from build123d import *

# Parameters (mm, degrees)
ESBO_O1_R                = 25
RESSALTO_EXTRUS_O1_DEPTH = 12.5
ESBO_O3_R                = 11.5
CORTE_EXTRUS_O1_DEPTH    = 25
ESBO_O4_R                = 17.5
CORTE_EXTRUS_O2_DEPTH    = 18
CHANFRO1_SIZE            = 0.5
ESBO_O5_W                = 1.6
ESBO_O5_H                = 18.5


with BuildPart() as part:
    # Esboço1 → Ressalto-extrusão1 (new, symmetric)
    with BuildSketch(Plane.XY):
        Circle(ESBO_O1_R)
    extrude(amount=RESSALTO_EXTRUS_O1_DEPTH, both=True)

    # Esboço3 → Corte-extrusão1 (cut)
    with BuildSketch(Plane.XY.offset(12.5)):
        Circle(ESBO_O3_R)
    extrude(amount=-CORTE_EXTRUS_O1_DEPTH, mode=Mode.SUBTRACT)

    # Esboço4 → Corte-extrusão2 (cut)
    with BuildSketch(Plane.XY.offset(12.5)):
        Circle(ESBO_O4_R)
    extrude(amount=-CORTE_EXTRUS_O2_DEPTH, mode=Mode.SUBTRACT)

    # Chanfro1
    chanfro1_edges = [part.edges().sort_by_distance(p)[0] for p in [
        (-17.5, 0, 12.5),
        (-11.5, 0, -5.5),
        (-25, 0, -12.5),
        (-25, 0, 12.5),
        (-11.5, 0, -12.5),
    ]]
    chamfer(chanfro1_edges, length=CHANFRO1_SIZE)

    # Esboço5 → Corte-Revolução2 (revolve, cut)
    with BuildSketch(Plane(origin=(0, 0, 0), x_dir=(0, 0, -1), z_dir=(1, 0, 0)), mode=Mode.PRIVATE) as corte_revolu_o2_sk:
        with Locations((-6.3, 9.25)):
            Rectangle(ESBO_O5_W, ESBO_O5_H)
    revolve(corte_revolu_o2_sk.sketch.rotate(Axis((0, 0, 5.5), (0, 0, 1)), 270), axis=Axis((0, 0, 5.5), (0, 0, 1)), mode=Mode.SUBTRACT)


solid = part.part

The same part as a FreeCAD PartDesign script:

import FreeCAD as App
import Part
import Sketcher


def edges_at(feature, points):
    """Names of the edges that pass closest to the given points."""
    edges = feature.Shape.Edges
    near = lambda p: min(range(len(edges)), key=lambda i: edges[i].distToShape(Part.Vertex(*p))[0])
    return sorted({f"Edge{near(p) + 1}" for p in points})

doc = App.newDocument("Part")
body = doc.addObject("PartDesign::Body", "Body")

sketch1 = doc.addObject("Sketcher::SketchObject", "Sketch")
body.addObject(sketch1)
sketch1.AttachmentSupport = (doc.XY_Plane, [""])
sketch1.MapMode = "FlatFace"
sketch1.addGeometry(Part.Circle(App.Vector(0, 0, 0), App.Vector(0, 0, 1), 25), False)
sketch1.addConstraint(Sketcher.Constraint("Coincident", 0, 3, -1, 1))
sketch1.addConstraint(Sketcher.Constraint("Diameter", 0, 50.0))
pad1 = doc.addObject("PartDesign::Pad", "Pad")
body.addObject(pad1)
pad1.Profile = sketch1
pad1.Length = 25
pad1.Midplane = True

sketch2 = doc.addObject("Sketcher::SketchObject", "Sketch001")
body.addObject(sketch2)
sketch2.AttachmentSupport = (doc.XY_Plane, [""])
sketch2.MapMode = "FlatFace"
sketch2.AttachmentOffset = App.Placement(App.Vector(0, 0, 12.5), App.Rotation())
sketch2.addGeometry(Part.Circle(App.Vector(0, 0, 0), App.Vector(0, 0, 1), 11.5), False)
sketch2.addConstraint(Sketcher.Constraint("Coincident", 0, 3, -1, 1))
sketch2.addConstraint(Sketcher.Constraint("Diameter", 0, 23.0))
pocket1 = doc.addObject("PartDesign::Pocket", "Pocket")
body.addObject(pocket1)
pocket1.Profile = sketch2
pocket1.Length = 25

sketch3 = doc.addObject("Sketcher::SketchObject", "Sketch002")
body.addObject(sketch3)
sketch3.AttachmentSupport = (doc.XY_Plane, [""])
sketch3.MapMode = "FlatFace"
sketch3.AttachmentOffset = App.Placement(App.Vector(0, 0, 12.5), App.Rotation())
sketch3.addGeometry(Part.Circle(App.Vector(0, 0, 0), App.Vector(0, 0, 1), 17.5), False)
sketch3.addConstraint(Sketcher.Constraint("Coincident", 0, 3, -1, 1))
sketch3.addConstraint(Sketcher.Constraint("Diameter", 0, 35.0))
pocket2 = doc.addObject("PartDesign::Pocket", "Pocket001")
body.addObject(pocket2)
pocket2.Profile = sketch3
pocket2.Length = 18
doc.recompute()

chamfer = doc.addObject("PartDesign::Chamfer", "Chamfer")
body.addObject(chamfer)
chamfer.Base = (pocket2, edges_at(pocket2, [
    (-17.5, 0, 12.5),
    (-11.5, 0, -5.5),
    (-25, 0, -12.5),
    (-25, 0, 12.5),
    (-11.5, 0, -12.5),
]))
chamfer.Size = 0.5

sketch4 = doc.addObject("Sketcher::SketchObject", "Sketch003")
body.addObject(sketch4)
sketch4.AttachmentSupport = (doc.YZ_Plane, [""])
sketch4.MapMode = "FlatFace"
sketch4.addGeometry(Part.LineSegment(App.Vector(18.5, 7.1, 0), App.Vector(0, 7.1, 0)), False)
sketch4.addGeometry(Part.LineSegment(App.Vector(0, 7.1, 0), App.Vector(0, 5.5, 0)), False)
sketch4.addGeometry(Part.LineSegment(App.Vector(0, 5.5, 0), App.Vector(18.5, 5.5, 0)), False)
sketch4.addGeometry(Part.LineSegment(App.Vector(18.5, 5.5, 0), App.Vector(18.5, 7.1, 0)), False)
sketch4.addConstraint(Sketcher.Constraint("Coincident", 0, 2, 1, 1))
sketch4.addConstraint(Sketcher.Constraint("Coincident", 1, 2, 2, 1))
sketch4.addConstraint(Sketcher.Constraint("Coincident", 2, 2, 3, 1))
sketch4.addConstraint(Sketcher.Constraint("Coincident", 3, 2, 0, 1))
sketch4.addConstraint(Sketcher.Constraint("Horizontal", 0))
sketch4.addConstraint(Sketcher.Constraint("Vertical", 1))
sketch4.addConstraint(Sketcher.Constraint("Horizontal", 2))
sketch4.addConstraint(Sketcher.Constraint("Vertical", 3))
sketch4.addConstraint(Sketcher.Constraint("PointOnObject", 0, 2, -2))
sketch4.addConstraint(Sketcher.Constraint("DistanceX", 0, 2, 0, 1, 18.5))
sketch4.addConstraint(Sketcher.Constraint("DistanceY", 1, 2, 1, 1, 1.6))
sketch4.addConstraint(Sketcher.Constraint("DistanceY", -1, 1, 0, 2, 7.1))
groove = doc.addObject("PartDesign::Groove", "Groove")
body.addObject(groove)
groove.Profile = sketch4
groove.ReferenceAxis = (sketch4, ["V_Axis"])
groove.Angle = 360

doc.recompute()
